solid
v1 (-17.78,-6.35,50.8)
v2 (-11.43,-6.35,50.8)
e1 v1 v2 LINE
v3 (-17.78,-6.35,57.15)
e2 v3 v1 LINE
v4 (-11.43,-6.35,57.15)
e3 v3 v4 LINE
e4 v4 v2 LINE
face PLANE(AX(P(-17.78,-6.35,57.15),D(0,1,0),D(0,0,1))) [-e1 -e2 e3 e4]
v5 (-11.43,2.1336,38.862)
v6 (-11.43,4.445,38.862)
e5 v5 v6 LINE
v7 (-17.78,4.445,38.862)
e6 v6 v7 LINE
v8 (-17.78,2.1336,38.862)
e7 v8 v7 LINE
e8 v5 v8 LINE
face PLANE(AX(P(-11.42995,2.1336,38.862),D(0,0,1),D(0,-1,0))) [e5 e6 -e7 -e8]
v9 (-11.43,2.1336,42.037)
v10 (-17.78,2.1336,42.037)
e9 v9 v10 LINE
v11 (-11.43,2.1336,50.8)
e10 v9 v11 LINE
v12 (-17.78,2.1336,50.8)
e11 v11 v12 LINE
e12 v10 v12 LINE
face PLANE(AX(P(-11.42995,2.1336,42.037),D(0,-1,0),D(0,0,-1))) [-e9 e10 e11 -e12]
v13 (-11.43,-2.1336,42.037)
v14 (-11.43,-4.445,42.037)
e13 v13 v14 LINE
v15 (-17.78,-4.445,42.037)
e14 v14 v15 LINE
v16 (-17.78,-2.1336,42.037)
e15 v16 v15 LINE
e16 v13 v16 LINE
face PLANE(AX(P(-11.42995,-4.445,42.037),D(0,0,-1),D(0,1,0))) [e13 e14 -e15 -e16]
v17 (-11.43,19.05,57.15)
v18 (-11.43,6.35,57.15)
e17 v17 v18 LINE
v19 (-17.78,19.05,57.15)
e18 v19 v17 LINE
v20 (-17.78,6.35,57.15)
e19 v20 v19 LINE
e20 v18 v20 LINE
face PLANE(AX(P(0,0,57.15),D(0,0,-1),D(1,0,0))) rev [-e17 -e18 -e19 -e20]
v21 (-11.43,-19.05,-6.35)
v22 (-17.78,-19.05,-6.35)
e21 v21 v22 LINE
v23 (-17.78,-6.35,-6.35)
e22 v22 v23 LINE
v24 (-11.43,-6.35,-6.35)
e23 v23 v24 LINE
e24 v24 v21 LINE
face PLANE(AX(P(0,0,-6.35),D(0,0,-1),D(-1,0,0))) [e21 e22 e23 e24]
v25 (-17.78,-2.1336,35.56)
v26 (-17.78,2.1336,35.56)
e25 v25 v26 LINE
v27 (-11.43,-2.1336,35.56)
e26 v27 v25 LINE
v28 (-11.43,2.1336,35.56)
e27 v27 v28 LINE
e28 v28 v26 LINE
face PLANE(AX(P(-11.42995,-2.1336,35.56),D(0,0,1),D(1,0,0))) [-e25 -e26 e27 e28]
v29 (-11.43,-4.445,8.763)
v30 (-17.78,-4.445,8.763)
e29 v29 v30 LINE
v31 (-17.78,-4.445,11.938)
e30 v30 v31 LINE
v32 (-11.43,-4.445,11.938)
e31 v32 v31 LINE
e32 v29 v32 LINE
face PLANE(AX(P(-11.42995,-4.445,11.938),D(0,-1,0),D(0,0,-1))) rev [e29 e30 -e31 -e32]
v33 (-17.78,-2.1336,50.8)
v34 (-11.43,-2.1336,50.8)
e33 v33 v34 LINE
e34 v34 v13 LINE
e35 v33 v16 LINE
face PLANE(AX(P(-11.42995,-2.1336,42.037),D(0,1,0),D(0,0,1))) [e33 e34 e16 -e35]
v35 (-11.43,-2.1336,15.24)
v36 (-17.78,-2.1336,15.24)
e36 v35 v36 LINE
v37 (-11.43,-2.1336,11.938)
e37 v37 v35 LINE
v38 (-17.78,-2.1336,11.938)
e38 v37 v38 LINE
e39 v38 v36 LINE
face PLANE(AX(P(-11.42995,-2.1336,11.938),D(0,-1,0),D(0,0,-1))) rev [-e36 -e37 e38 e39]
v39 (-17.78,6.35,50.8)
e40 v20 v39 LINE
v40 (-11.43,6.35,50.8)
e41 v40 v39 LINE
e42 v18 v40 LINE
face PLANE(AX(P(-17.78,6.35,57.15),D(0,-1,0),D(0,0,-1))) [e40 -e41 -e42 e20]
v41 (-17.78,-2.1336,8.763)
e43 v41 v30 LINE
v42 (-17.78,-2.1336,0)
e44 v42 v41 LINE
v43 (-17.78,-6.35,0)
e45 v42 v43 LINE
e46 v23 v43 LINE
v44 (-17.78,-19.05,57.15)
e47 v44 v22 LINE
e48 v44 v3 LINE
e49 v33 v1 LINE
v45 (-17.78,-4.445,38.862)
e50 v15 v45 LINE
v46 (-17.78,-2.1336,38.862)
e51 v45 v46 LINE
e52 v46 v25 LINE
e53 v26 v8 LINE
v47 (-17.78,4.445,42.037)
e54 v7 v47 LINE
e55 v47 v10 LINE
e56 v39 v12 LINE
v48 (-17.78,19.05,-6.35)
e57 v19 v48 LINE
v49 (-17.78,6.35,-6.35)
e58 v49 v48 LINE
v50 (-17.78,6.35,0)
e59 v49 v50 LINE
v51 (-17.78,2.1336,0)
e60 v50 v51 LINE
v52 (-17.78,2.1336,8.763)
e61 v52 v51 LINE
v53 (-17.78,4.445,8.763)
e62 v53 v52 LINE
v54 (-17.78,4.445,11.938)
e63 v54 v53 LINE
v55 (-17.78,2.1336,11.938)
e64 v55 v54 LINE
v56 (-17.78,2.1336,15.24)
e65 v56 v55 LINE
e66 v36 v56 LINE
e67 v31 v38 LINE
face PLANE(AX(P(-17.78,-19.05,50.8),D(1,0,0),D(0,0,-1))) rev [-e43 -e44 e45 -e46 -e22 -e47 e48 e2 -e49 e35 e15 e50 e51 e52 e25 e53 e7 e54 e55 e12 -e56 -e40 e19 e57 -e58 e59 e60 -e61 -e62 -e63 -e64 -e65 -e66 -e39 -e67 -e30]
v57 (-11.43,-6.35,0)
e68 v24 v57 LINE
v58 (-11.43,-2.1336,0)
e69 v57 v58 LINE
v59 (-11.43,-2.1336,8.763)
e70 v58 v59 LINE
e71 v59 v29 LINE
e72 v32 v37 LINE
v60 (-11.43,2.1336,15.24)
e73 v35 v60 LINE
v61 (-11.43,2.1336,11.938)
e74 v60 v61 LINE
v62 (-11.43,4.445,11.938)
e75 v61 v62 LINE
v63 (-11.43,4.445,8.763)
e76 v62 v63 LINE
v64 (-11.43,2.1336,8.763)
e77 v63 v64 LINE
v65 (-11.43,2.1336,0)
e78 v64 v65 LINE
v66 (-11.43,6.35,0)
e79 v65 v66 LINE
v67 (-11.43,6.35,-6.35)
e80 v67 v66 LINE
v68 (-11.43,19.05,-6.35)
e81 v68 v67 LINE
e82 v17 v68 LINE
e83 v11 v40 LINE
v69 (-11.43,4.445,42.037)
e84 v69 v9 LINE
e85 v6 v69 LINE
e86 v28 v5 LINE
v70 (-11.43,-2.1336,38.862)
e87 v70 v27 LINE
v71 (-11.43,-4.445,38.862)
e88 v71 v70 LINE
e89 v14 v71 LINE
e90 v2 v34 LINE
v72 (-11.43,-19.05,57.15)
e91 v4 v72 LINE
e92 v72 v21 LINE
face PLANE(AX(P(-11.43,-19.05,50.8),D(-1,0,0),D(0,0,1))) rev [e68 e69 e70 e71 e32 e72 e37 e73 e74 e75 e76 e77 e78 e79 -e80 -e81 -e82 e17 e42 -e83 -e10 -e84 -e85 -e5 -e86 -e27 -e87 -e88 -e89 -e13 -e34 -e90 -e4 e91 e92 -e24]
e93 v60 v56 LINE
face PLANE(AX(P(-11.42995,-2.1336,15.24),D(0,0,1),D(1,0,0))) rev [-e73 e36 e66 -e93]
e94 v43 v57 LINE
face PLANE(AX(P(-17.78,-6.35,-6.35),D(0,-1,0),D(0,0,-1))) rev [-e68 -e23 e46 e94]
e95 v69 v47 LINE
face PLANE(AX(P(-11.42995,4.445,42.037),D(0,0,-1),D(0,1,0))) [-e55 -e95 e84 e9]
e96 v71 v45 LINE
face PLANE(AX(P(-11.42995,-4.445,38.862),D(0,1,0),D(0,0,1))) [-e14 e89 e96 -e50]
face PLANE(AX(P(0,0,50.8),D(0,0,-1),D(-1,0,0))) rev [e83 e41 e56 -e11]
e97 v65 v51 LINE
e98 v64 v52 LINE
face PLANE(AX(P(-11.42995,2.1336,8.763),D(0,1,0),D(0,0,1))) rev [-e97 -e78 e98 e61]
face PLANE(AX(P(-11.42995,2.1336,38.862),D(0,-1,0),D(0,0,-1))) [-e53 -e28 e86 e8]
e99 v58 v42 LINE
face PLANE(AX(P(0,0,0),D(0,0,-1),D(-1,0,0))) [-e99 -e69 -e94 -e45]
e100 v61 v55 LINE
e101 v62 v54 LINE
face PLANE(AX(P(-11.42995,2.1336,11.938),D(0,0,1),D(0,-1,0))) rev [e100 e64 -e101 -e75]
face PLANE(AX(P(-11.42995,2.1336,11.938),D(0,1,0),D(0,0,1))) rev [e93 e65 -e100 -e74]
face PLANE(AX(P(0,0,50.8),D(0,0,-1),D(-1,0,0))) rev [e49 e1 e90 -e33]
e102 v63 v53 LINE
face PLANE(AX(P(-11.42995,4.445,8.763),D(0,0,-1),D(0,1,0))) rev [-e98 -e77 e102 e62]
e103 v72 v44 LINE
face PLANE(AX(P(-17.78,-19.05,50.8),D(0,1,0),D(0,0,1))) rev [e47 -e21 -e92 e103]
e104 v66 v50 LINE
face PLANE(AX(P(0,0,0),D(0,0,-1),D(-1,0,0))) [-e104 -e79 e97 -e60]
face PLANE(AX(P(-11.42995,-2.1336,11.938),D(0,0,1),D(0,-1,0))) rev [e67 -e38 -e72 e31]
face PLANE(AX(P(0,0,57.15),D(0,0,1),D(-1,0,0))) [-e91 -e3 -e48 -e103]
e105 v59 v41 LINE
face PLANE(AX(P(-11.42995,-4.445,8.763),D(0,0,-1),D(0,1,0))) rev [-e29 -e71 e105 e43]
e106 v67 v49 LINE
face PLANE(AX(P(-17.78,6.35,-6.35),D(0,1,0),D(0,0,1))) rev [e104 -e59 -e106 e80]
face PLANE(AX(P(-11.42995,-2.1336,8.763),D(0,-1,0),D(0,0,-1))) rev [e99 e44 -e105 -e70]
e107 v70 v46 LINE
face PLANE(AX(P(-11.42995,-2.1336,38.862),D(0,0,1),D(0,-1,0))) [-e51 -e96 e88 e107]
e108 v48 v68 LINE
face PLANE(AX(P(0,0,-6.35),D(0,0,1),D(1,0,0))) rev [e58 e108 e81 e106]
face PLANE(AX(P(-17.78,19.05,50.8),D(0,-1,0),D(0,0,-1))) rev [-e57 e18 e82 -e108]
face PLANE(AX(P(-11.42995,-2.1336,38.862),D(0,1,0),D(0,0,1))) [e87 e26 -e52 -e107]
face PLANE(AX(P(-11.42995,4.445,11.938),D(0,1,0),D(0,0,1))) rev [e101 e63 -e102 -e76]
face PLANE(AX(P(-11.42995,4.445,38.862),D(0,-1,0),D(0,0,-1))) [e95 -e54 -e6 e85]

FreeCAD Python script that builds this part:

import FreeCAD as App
import Part
import Sketcher
Q = App.Units.Quantity

doc = App.newDocument("Part")
body = doc.addObject("PartDesign::Body", "Body")

# Sketch on XY plane
sketch1 = body.newObject("Sketcher::SketchObject", "Sketch")
sketch1.AttachmentSupport = (doc.getObject("XY_Plane"), [""])
sketch1.MapMode = "FlatFace"
sketch1.addGeometry([
    Part.LineSegment(App.Vector(-18, 19, 0), App.Vector(-18, -19, 0)),
    Part.LineSegment(App.Vector(-18, -19, 0), App.Vector(-11, -19, 0)),
    Part.LineSegment(App.Vector(-11, -19, 0), App.Vector(-11, 19, 0)),
    Part.LineSegment(App.Vector(-11, 19, 0), App.Vector(-18, 19, 0)),
], False)
sketch1.addConstraint([
    Sketcher.Constraint("Coincident", 0, 2, 1, 1),
    Sketcher.Constraint("Coincident", 1, 2, 2, 1),
    Sketcher.Constraint("Coincident", 2, 2, 3, 1),
    Sketcher.Constraint("Coincident", 3, 2, 0, 1),
    Sketcher.Constraint("Vertical", 0),
    Sketcher.Constraint("Horizontal", 1),
    Sketcher.Constraint("Vertical", 2),
    Sketcher.Constraint("Horizontal", 3),
    Sketcher.Constraint("DistanceY", 0, 2, 0, 1, Q("1.5 in")),
    Sketcher.Constraint("DistanceX", 1, 1, 1, 2, Q("0.25 in")),
    Sketcher.Constraint("DistanceX", 0, 2, -1, 1, Q("0.7 in")),
    Sketcher.Constraint("DistanceY", 0, 2, -1, 1, Q("0.75 in")),
])
pad1 = body.newObject("PartDesign::Pad", "Pad")
pad1.Profile = sketch1
pad1.Length = Q("2 in")

# Sketch on XY plane
sketch2 = body.newObject("Sketcher::SketchObject", "Sketch001")
sketch2.AttachmentSupport = (doc.getObject("XY_Plane"), [""])
sketch2.MapMode = "FlatFace"
sketch2.addGeometry([
    Part.LineSegment(App.Vector(-11, -6, 0), App.Vector(-11, -19, 0)),  # 0
    Part.LineSegment(App.Vector(-11, -19, 0), App.Vector(-18, -19, 0)),  # 1
    Part.LineSegment(App.Vector(-18, -19, 0), App.Vector(-18, -6, 0)),  # 2
    Part.LineSegment(App.Vector(-18, -6, 0), App.Vector(-11, -6, 0)),  # 3
    Part.LineSegment(App.Vector(-11, 19, 0), App.Vector(-11, 6, 0)),  # 4
    Part.LineSegment(App.Vector(-11, 6, 0), App.Vector(-18, 6, 0)),  # 5
    Part.LineSegment(App.Vector(-18, 6, 0), App.Vector(-18, 19, 0)),  # 6
    Part.LineSegment(App.Vector(-18, 19, 0), App.Vector(-11, 19, 0)),  # 7
], False)
sketch2.addConstraint([
    Sketcher.Constraint("Coincident", 0, 2, 1, 1),
    Sketcher.Constraint("Coincident", 1, 2, 2, 1),
    Sketcher.Constraint("Coincident", 2, 2, 3, 1),
    Sketcher.Constraint("Coincident", 3, 2, 0, 1),
    Sketcher.Constraint("Coincident", 4, 2, 5, 1),
    Sketcher.Constraint("Coincident", 5, 2, 6, 1),
    Sketcher.Constraint("Coincident", 6, 2, 7, 1),
    Sketcher.Constraint("Coincident", 7, 2, 4, 1),
    Sketcher.Constraint("Vertical", 0),
    Sketcher.Constraint("Horizontal", 1),
    Sketcher.Constraint("Vertical", 2),
    Sketcher.Constraint("Horizontal", 3),
    Sketcher.Constraint("Vertical", 4),
    Sketcher.Constraint("Horizontal", 5),
    Sketcher.Constraint("Vertical", 6),
    Sketcher.Constraint("Horizontal", 7),
    Sketcher.Constraint("Symmetric", 3, 2, 4, 2, -1),
    Sketcher.Constraint("Symmetric", 1, 2, 6, 2, -1),
    Sketcher.Constraint("DistanceY", 0, 2, 0, 1, Q("0.5 in")),
    Sketcher.Constraint("DistanceY", 0, 2, 4, 2, Q("1 in")),
    Sketcher.Constraint("DistanceX", 1, 2, 1, 1, Q("0.25 in")),
    Sketcher.Constraint("DistanceX", 1, 2, -1, 1, Q("0.7 in")),
])
pad2 = body.newObject("PartDesign::Pad", "Pad001")
pad2.Profile = sketch2
pad2.Length = Q("0.25 in")
pad2.Reversed = True

# Sketch on YZ plane
sketch3 = body.newObject("Sketcher::SketchObject", "Sketch002")
sketch3.AttachmentSupport = (doc.getObject("YZ_Plane"), [""])
sketch3.MapMode = "FlatFace"
sketch3.AttachmentOffset = App.Placement(App.Vector(0, 0, -0.7 * 25.4), App.Rotation())
sketch3.addGeometry([
    Part.LineSegment(App.Vector(2.1, 0, 0), App.Vector(-2.1, 0, 0)),  # 0
    Part.LineSegment(App.Vector(-2.1, 0, 0), App.Vector(-2.1, 8.8, 0)),  # 1
    Part.LineSegment(App.Vector(-2.1, 8.8, 0), App.Vector(-4.4, 8.8, 0)),  # 2
    Part.LineSegment(App.Vector(-4.4, 8.8, 0), App.Vector(-4.4, 11.9, 0)),  # 3
    Part.LineSegment(App.Vector(-4.4, 11.9, 0), App.Vector(-2.1, 11.9, 0)),  # 4
    Part.LineSegment(App.Vector(-2.1, 11.9, 0), App.Vector(-2.1, 15.2, 0)),  # 5
    Part.LineSegment(App.Vector(-2.1, 15.2, 0), App.Vector(2.1, 15.2, 0)),  # 6
    Part.LineSegment(App.Vector(2.1, 15.2, 0), App.Vector(2.1, 11.9, 0)),  # 7
    Part.LineSegment(App.Vector(2.1, 11.9, 0), App.Vector(4.4, 11.9, 0)),  # 8
    Part.LineSegment(App.Vector(4.4, 11.9, 0), App.Vector(4.4, 8.8, 0)),  # 9
    Part.LineSegment(App.Vector(4.4, 8.8, 0), App.Vector(2.1, 8.8, 0)),  # 10
    Part.LineSegment(App.Vector(2.1, 8.8, 0), App.Vector(2.1, 0, 0)),  # 11
], False)
sketch3.addConstraint([
    Sketcher.Constraint("Coincident", 0, 2, 1, 1),
    Sketcher.Constraint("Coincident", 1, 2, 2, 1),
    Sketcher.Constraint("Coincident", 2, 2, 3, 1),
    Sketcher.Constraint("Coincident", 3, 2, 4, 1),
    Sketcher.Constraint("Coincident", 4, 2, 5, 1),
    Sketcher.Constraint("Coincident", 5, 2, 6, 1),
    Sketcher.Constraint("Coincident", 6, 2, 7, 1),
    Sketcher.Constraint("Coincident", 7, 2, 8, 1),
    Sketcher.Constraint("Coincident", 8, 2, 9, 1),
    Sketcher.Constraint("Coincident", 9, 2, 10, 1),
    Sketcher.Constraint("Coincident", 10, 2, 11, 1),
    Sketcher.Constraint("Coincident", 11, 2, 0, 1),
    Sketcher.Constraint("Horizontal", 0),
    Sketcher.Constraint("Vertical", 1),
    Sketcher.Constraint("Horizontal", 2),
    Sketcher.Constraint("Vertical", 3),
    Sketcher.Constraint("Horizontal", 4),
    Sketcher.Constraint("Vertical", 5),
    Sketcher.Constraint("Horizontal", 6),
    Sketcher.Constraint("Vertical", 7),
    Sketcher.Constraint("Horizontal", 8),
    Sketcher.Constraint("Vertical", 9),
    Sketcher.Constraint("Horizontal", 10),
    Sketcher.Constraint("Vertical", 11),
    Sketcher.Constraint("Symmetric", 0, 2, 11, 2, -1, 1),
    Sketcher.Constraint("Symmetric", 4, 2, 7, 2, -2),
    Sketcher.Constraint("Symmetric", 2, 2, 9, 2, -2),
    Sketcher.Constraint("Vertical", 1, 2, 4, 2),
    Sketcher.Constraint("DistanceY", 5, 1, 5, 2, Q("0.13 in")),
    Sketcher.Constraint("DistanceY", -1, 1, 5, 2, Q("0.6 in")),
    Sketcher.Constraint("DistanceX", 0, 2, 0, 1, Q("0.168 in")),
    Sketcher.Constraint("DistanceX", 2, 2, 2, 1, Q("0.091 in")),
    Sketcher.Constraint("DistanceY", 1, 1, 1, 2, Q("0.345 in")),
])
pocket1 = body.newObject("PartDesign::Pocket", "Pocket")
pocket1.Profile = sketch3
pocket1.Type = "ThroughAll"
pocket1.Reversed = True
doc.recompute()

datumplane = body.newObject("PartDesign::Plane", "DatumPlane")
datumplane.AttachmentSupport = (doc.getObject("XY_Plane"), [""])
datumplane.MapMode = "FlatFace"
datumplane.AttachmentOffset = App.Placement(App.Vector(0, 0, 1 * 25.4), App.Rotation())
mirrored = body.newObject("PartDesign::Mirrored", "Mirrored")
mirrored.Originals = [pad2, pocket1]
mirrored.MirrorPlane = (datumplane, [""])
body.Tip = mirrored

doc.recompute()
